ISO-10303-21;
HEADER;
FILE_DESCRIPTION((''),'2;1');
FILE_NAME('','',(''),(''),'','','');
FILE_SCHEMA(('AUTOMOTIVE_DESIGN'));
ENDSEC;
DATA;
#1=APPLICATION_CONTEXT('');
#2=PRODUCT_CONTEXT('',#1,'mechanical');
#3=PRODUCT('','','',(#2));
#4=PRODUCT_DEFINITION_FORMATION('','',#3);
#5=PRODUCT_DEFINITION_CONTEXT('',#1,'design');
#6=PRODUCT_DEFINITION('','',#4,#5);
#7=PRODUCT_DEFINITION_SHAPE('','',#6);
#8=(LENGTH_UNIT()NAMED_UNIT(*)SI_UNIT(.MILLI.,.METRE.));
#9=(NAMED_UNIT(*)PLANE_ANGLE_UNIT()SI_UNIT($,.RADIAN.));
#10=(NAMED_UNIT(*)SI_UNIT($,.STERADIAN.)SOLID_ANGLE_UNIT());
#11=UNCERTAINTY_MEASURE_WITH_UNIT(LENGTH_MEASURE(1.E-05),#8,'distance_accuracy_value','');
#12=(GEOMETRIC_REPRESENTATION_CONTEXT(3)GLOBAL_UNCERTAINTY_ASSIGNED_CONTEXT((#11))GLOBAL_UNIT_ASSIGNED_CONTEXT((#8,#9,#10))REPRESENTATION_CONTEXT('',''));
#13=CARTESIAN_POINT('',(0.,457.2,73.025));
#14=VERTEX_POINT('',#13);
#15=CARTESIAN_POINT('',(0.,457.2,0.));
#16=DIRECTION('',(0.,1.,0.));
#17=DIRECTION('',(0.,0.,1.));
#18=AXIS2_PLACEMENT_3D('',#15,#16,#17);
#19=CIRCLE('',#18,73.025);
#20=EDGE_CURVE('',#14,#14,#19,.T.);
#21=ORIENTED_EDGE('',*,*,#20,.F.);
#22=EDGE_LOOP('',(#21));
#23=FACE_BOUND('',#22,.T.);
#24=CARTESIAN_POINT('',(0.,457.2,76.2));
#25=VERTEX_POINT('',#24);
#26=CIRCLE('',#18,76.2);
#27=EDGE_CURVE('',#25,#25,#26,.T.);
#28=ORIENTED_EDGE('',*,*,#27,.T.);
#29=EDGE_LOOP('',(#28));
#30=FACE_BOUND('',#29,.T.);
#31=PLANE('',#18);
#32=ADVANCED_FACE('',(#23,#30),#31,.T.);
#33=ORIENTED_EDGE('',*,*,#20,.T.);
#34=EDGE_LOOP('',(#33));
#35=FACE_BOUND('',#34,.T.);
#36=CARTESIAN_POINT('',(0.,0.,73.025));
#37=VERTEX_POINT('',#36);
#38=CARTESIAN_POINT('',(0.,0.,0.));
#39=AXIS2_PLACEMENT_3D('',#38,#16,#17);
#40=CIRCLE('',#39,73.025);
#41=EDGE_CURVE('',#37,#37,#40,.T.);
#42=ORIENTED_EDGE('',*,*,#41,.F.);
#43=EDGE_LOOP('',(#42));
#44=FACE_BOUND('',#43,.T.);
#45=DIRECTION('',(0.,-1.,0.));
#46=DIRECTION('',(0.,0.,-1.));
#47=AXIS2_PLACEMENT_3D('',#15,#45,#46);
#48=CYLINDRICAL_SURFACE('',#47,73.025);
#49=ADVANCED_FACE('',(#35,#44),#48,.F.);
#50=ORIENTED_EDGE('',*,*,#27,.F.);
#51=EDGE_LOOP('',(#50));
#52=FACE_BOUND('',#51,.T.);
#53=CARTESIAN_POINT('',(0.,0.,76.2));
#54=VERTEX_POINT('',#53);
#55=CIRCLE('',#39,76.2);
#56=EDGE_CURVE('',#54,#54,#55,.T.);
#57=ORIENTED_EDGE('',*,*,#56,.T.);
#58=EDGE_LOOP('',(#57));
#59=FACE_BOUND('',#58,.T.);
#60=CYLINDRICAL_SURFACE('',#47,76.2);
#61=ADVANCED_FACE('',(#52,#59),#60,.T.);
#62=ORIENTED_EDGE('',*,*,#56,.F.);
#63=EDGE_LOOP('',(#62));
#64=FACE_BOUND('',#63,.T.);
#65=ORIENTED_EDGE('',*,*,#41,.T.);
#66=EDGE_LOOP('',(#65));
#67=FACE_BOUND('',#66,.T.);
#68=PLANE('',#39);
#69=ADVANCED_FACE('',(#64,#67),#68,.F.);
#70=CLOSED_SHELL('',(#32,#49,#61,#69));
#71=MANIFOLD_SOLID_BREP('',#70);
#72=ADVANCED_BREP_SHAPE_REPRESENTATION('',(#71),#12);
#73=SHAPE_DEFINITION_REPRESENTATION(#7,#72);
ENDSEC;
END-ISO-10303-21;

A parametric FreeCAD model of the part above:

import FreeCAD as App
import Part
import Sketcher
Q = App.Units.Quantity

doc = App.newDocument("Part")
body = doc.addObject("PartDesign::Body", "Body")

sketch1 = body.newObject("Sketcher::SketchObject", "Sketch")
sketch1.AttachmentSupport = (doc.getObject("XZ_Plane"), [""])
sketch1.MapMode = "FlatFace"
sketch1.addGeometry([
    Part.Circle(App.Vector(0, 0, 0), App.Vector(0, 0, 1), 76.2),
    Part.Circle(App.Vector(0, 0, 0), App.Vector(0, 0, 1), 73.025),
], False)
sketch1.addConstraint([
    Sketcher.Constraint("Coincident", 0, 3, -1, 1),
    Sketcher.Constraint("Coincident", 1, 3, -1, 1),
    Sketcher.Constraint("Diameter", 0, Q("6 in")),
    Sketcher.Constraint("Diameter", 1, Q("5.75 in")),
])
pad1 = body.newObject("PartDesign::Pad", "Pad")
pad1.Profile = sketch1
pad1.Length = Q("18 in")
pad1.Reversed = True

doc.recompute()
